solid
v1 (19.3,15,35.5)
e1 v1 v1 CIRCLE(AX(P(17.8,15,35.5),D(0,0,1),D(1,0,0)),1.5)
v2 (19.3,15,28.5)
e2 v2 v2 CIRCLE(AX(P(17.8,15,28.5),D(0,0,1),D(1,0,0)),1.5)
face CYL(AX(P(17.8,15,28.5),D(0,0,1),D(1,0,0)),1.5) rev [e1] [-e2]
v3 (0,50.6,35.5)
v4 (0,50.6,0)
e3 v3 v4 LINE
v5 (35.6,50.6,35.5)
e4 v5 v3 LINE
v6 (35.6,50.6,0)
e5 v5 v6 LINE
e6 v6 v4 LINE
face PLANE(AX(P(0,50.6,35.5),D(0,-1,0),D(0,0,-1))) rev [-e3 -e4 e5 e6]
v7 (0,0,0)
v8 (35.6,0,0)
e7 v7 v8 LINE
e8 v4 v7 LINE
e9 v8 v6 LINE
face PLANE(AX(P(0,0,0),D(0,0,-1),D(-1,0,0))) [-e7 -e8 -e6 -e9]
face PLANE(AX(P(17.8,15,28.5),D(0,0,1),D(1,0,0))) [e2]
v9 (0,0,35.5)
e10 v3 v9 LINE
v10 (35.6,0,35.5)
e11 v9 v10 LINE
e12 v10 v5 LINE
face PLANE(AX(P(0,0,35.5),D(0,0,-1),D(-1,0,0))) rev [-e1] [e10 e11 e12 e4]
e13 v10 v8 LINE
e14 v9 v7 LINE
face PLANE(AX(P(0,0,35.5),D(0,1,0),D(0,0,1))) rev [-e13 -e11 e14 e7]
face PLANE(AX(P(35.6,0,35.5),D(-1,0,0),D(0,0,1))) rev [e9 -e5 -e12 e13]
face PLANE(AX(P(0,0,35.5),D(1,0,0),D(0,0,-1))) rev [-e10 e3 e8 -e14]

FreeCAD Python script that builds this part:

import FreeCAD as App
import Part
import Sketcher
from FreeCAD import Vector

doc = App.newDocument("Part")
body = doc.addObject("PartDesign::Body", "Body")

sketch1 = doc.addObject("Sketcher::SketchObject", "Sketch")
body.addObject(sketch1)
sketch1.AttachmentSupport = (doc.XY_Plane, [""])
sketch1.MapMode = "FlatFace"
sketch1.addGeometry(Part.LineSegment(Vector(0, 50.6, 0), Vector(0, 0, 0)), False)
sketch1.addGeometry(Part.LineSegment(Vector(0, 0, 0), Vector(35.6, 0, 0)), False)
sketch1.addGeometry(Part.LineSegment(Vector(35.6, 0, 0), Vector(35.6, 50.6, 0)), False)
sketch1.addGeometry(Part.LineSegment(Vector(35.6, 50.6, 0), Vector(0, 50.6, 0)), False)
sketch1.addConstraint(Sketcher.Constraint("Coincident", 0, 2, 1, 1))
sketch1.addConstraint(Sketcher.Constraint("Coincident", 1, 2, 2, 1))
sketch1.addConstraint(Sketcher.Constraint("Coincident", 2, 2, 3, 1))
sketch1.addConstraint(Sketcher.Constraint("Coincident", 3, 2, 0, 1))
sketch1.addConstraint(Sketcher.Constraint("Vertical", 0))
sketch1.addConstraint(Sketcher.Constraint("Horizontal", 1))
sketch1.addConstraint(Sketcher.Constraint("Vertical", 2))
sketch1.addConstraint(Sketcher.Constraint("Horizontal", 3))
sketch1.addConstraint(Sketcher.Constraint("Coincident", 0, 2, -1, 1))
sketch1.addConstraint(Sketcher.Constraint("DistanceX", 1, 1, 1, 2, 35.6))
sketch1.addConstraint(Sketcher.Constraint("DistanceY", 0, 2, 0, 1, 50.6))
pad1 = doc.addObject("PartDesign::Pad", "Pad")
body.addObject(pad1)
pad1.Profile = sketch1
pad1.Length = 35.5

sketch2 = doc.addObject("Sketcher::SketchObject", "Sketch001")
body.addObject(sketch2)
sketch2.AttachmentSupport = (doc.XY_Plane, [""])
sketch2.MapMode = "FlatFace"
sketch2.AttachmentOffset = App.Placement(Vector(0, 0, 35.5), App.Rotation())
sketch2.addGeometry(Part.Circle(Vector(17.8, 15, 0), Vector(0, 0, 1), 1.5), False)
sketch2.addConstraint(Sketcher.Constraint("Diameter", 0, 3.0))
sketch2.addConstraint(Sketcher.Constraint("DistanceY", -1, 1, 0, 3, 15.0))
sketch2.addConstraint(Sketcher.Constraint("DistanceX", -1, 1, 0, 3, 17.8))
pocket1 = doc.addObject("PartDesign::Pocket", "Pocket")
body.addObject(pocket1)
pocket1.Profile = sketch2
pocket1.Length = 7

doc.recompute()
